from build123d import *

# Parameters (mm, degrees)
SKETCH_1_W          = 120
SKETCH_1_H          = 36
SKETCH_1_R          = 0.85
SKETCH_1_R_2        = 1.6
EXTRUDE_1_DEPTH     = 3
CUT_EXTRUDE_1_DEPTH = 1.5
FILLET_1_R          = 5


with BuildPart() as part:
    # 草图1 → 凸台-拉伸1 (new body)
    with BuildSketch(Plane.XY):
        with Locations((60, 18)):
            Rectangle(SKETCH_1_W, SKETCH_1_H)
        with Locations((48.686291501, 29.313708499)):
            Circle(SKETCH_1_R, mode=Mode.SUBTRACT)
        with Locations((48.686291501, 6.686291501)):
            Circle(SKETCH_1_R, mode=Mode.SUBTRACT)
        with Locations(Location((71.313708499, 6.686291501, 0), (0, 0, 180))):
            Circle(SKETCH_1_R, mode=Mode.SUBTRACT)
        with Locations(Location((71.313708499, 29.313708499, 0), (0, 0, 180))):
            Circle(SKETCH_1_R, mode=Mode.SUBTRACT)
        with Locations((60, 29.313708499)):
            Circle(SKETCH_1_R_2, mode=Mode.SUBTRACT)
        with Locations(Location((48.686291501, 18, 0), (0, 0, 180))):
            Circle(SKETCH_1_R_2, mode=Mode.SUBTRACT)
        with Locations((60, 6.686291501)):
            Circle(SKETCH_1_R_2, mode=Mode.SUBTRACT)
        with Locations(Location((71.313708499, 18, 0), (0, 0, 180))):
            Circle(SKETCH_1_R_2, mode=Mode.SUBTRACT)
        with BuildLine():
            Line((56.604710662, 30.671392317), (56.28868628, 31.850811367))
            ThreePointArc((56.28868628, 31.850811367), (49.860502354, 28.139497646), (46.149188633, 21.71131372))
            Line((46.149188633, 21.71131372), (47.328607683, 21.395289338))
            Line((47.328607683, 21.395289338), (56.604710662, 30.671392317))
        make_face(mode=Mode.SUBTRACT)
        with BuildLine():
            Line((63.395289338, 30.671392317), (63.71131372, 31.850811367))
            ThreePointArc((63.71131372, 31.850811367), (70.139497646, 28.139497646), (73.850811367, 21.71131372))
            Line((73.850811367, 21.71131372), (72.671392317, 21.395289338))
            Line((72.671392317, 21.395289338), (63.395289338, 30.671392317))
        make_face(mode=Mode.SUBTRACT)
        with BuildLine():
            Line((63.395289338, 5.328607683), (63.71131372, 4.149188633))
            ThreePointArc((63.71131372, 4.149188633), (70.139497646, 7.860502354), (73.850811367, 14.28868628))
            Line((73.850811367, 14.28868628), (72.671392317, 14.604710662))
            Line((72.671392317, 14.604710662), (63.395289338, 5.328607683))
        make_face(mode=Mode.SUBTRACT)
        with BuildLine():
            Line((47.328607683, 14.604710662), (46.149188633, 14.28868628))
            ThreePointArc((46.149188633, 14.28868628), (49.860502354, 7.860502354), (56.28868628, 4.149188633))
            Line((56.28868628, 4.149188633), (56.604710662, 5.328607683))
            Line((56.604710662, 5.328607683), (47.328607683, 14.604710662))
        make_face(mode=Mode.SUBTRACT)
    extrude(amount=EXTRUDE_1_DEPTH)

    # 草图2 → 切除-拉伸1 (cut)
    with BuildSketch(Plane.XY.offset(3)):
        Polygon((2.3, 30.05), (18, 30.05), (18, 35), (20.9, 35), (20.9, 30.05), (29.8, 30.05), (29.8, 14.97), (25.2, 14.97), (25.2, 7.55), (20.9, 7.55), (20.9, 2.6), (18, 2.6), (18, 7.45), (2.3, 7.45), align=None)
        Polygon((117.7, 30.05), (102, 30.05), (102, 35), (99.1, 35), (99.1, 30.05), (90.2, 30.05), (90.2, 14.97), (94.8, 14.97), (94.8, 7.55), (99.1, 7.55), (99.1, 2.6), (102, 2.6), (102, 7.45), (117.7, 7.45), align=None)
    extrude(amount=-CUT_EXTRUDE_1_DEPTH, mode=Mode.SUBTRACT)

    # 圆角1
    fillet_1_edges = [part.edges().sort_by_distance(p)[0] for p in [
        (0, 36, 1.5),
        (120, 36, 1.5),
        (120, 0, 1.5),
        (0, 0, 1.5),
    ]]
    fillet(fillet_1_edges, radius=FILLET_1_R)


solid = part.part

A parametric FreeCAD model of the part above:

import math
import FreeCAD as App
import Part
import Sketcher
Q = App.Units.Quantity


def edges_at(feature, points):
    """Names of the edges that pass closest to the given points."""
    edges = feature.Shape.Edges
    near = lambda p: min(range(len(edges)), key=lambda i: edges[i].distToShape(Part.Vertex(*p))[0])
    return sorted({f"Edge{near(p) + 1}" for p in points})

doc = App.newDocument("Part")
body = doc.addObject("PartDesign::Body", "Body")

# Sketch on XY plane
sketch1 = body.newObject("Sketcher::SketchObject", "Sketch")
sketch1.AttachmentSupport = (doc.getObject("XY_Plane"), [""])
sketch1.MapMode = "FlatFace"
sketch1.addGeometry([
    Part.LineSegment(App.Vector(0, 36, 0), App.Vector(0, 0, 0)),  # 0
    Part.LineSegment(App.Vector(0, 0, 0), App.Vector(120, 0, 0)),  # 1
    Part.LineSegment(App.Vector(120, 0, 0), App.Vector(120, 36, 0)),  # 2
    Part.LineSegment(App.Vector(120, 36, 0), App.Vector(0, 36, 0)),  # 3
    Part.Circle(App.Vector(48.686292, 6.686292, 0), App.Vector(0, 0, 1), 0.85),  # 4
    Part.LineSegment(App.Vector(46.149189, 14.288686, 0), App.Vector(47.328608, 14.604711, 0)),  # 5
    Part.LineSegment(App.Vector(47.328608, 14.604711, 0), App.Vector(56.604711, 5.328608, 0)),  # 6
    Part.LineSegment(App.Vector(56.604711, 5.328608, 0), App.Vector(56.288686, 4.149189, 0)),  # 7
    Part.ArcOfCircle(Part.Circle(App.Vector(60, 18, 0), App.Vector(0, 0, 1), 14.339415), math.radians(-165), math.radians(-105)),  # 8
    Part.Circle(App.Vector(60, 6.686292, 0), App.Vector(0, 0, 1), 1.6),  # 9
    Part.Circle(App.Vector(71.313708, 6.686292, 0), App.Vector(0, 0, 1), 0.85),  # 10
    Part.LineSegment(App.Vector(63.711314, 4.149189, 0), App.Vector(63.395289, 5.328608, 0)),  # 11
    Part.LineSegment(App.Vector(63.395289, 5.328608, 0), App.Vector(72.671392, 14.604711, 0)),  # 12
    Part.LineSegment(App.Vector(72.671392, 14.604711, 0), App.Vector(73.850811, 14.288686, 0)),  # 13
    Part.ArcOfCircle(Part.Circle(App.Vector(60, 18, 0), App.Vector(0, 0, 1), 14.339415), math.radians(-75), math.radians(-15)),  # 14
    Part.Circle(App.Vector(48.686292, 18, 0), App.Vector(0, 0, 1), 1.6),  # 15
    Part.LineSegment(App.Vector(56.288686, 31.850811, 0), App.Vector(56.604711, 30.671392, 0)),  # 16
    Part.LineSegment(App.Vector(56.604711, 30.671392, 0), App.Vector(47.328608, 21.395289, 0)),  # 17
    Part.LineSegment(App.Vector(47.328608, 21.395289, 0), App.Vector(46.149189, 21.711314, 0)),  # 18
    Part.ArcOfCircle(Part.Circle(App.Vector(60, 18, 0), App.Vector(0, 0, 1), 14.339415), math.radians(105), math.radians(165)),  # 19
    Part.Circle(App.Vector(48.686292, 29.313708, 0), App.Vector(0, 0, 1), 0.85),  # 20
    Part.Circle(App.Vector(60, 29.313708, 0), App.Vector(0, 0, 1), 1.6),  # 21
    Part.Circle(App.Vector(71.313708, 18, 0), App.Vector(0, 0, 1), 1.6),  # 22
    Part.LineSegment(App.Vector(72.671392, 21.395289, 0), App.Vector(63.395289, 30.671392, 0)),  # 23
    Part.LineSegment(App.Vector(63.395289, 30.671392, 0), App.Vector(63.711314, 31.850811, 0)),  # 24
    Part.ArcOfCircle(Part.Circle(App.Vector(60, 18, 0), App.Vector(0, 0, 1), 14.339415), math.radians(15), math.radians(75)),  # 25
    Part.LineSegment(App.Vector(73.850811, 21.711314, 0), App.Vector(72.671392, 21.395289, 0)),  # 26
    Part.Circle(App.Vector(71.313708, 29.313708, 0), App.Vector(0, 0, 1), 0.85),  # 27
], False)
sketch1.addConstraint([
    Sketcher.Constraint("Coincident", 0, 2, 1, 1),
    Sketcher.Constraint("Coincident", 1, 2, 2, 1),
    Sketcher.Constraint("Coincident", 2, 2, 3, 1),
    Sketcher.Constraint("Coincident", 3, 2, 0, 1),
    Sketcher.Constraint("Coincident", 5, 2, 6, 1),
    Sketcher.Constraint("Coincident", 6, 2, 7, 1),
    Sketcher.Constraint("Coincident", 7, 2, 8, 2),
    Sketcher.Constraint("Coincident", 8, 1, 5, 1),
    Sketcher.Constraint("Coincident", 11, 2, 12, 1),
    Sketcher.Constraint("Coincident", 12, 2, 13, 1),
    Sketcher.Constraint("Coincident", 13, 2, 14, 2),
    Sketcher.Constraint("Coincident", 14, 1, 11, 1),
    Sketcher.Constraint("Coincident", 16, 2, 17, 1),
    Sketcher.Constraint("Coincident", 17, 2, 18, 1),
    Sketcher.Constraint("Coincident", 18, 2, 19, 2),
    Sketcher.Constraint("Coincident", 19, 1, 16, 1),
    Sketcher.Constraint("Coincident", 23, 2, 24, 1),
    Sketcher.Constraint("Coincident", 24, 2, 25, 2),
    Sketcher.Constraint("Coincident", 25, 1, 26, 1),
    Sketcher.Constraint("Coincident", 26, 2, 23, 1),
    Sketcher.Constraint("Vertical", 0),
    Sketcher.Constraint("Horizontal", 1),
    Sketcher.Constraint("Vertical", 2),
    Sketcher.Constraint("Horizontal", 3),
    Sketcher.Constraint("Coincident", 0, 2, -1, 1),
    Sketcher.Constraint("Coincident", 14, 3, 8, 3),
    Sketcher.Constraint("Coincident", 19, 3, 8, 3),
    Sketcher.Constraint("Coincident", 25, 3, 8, 3),
    Sketcher.Constraint("Equal", 4, 10),
    Sketcher.Constraint("Equal", 8, 14),
    Sketcher.Constraint("Equal", 9, 15),
    Sketcher.Constraint("Equal", 14, 19),
    Sketcher.Constraint("Equal", 10, 20),
    Sketcher.Constraint("Equal", 15, 21),
    Sketcher.Constraint("Equal", 21, 22),
    Sketcher.Constraint("Equal", 19, 25),
    Sketcher.Constraint("Equal", 20, 27),
    Sketcher.Constraint("Perpendicular", 5, 11),
    Sketcher.Constraint("Perpendicular", 6, 12),
    Sketcher.Constraint("Perpendicular", 7, 13),
    Sketcher.Constraint("Parallel", 11, 16),
    Sketcher.Constraint("Parallel", 12, 17),
    Sketcher.Constraint("Parallel", 13, 18),
    Sketcher.Constraint("Perpendicular", 17, 23),
    Sketcher.Constraint("Perpendicular", 18, 24),
    Sketcher.Constraint("Perpendicular", 16, 26),
    Sketcher.Constraint("Horizontal", 4, 3, 9, 3),
    Sketcher.Constraint("Horizontal", 9, 3, 10, 3),
    Sketcher.Constraint("Horizontal", 14, 3, 15, 3),
    Sketcher.Constraint("Horizontal", 20, 3, 21, 3),
    Sketcher.Constraint("Horizontal", 19, 3, 22, 3),
    Sketcher.Constraint("Horizontal", 21, 3, 27, 3),
    Sketcher.Constraint("Horizontal", 6, 2, 11, 2),
    Sketcher.Constraint("Horizontal", 5, 2, 12, 2),
    Sketcher.Constraint("Horizontal", 8, 1, 13, 2),
    Sketcher.Constraint("Horizontal", 7, 2, 14, 1),
    Sketcher.Constraint("Horizontal", 16, 2, 23, 2),
    Sketcher.Constraint("Horizontal", 19, 1, 24, 2),
    Sketcher.Constraint("Horizontal", 18, 2, 25, 1),
    Sketcher.Constraint("Vertical", 8, 3, 9, 3),
    Sketcher.Constraint("Vertical", 4, 3, 15, 3),
    Sketcher.Constraint("Vertical", 15, 3, 20, 3),
    Sketcher.Constraint("Vertical", 19, 3, 21, 3),
    Sketcher.Constraint("Vertical", 10, 3, 22, 3),
    Sketcher.Constraint("Vertical", 22, 3, 27, 3),
    Sketcher.Constraint("Vertical", 6, 2, 16, 2),
    Sketcher.Constraint("Vertical", 5, 2, 17, 2),
    Sketcher.Constraint("Vertical", 8, 1, 18, 2),
    Sketcher.Constraint("Vertical", 11, 2, 23, 2),
    Sketcher.Constraint("Equal", 5, 7),
    Sketcher.Constraint("Diameter", 4, Q("1.7 mm")),
    Sketcher.Constraint("Diameter", 9, Q("3.2 mm")),
    Sketcher.Constraint("DistanceX", 1, 1, 1, 2, Q("120 mm")),
    Sketcher.Constraint("DistanceY", 0, 2, 0, 1, Q("36 mm")),
    Sketcher.Constraint("Angle", 5, Q("15 deg")),
    Sketcher.Constraint("DistanceX", -1, 1, 8, 3, Q("60 mm")),
    Sketcher.Constraint("DistanceY", -1, 1, 8, 3, Q("18 mm")),
    Sketcher.Constraint("Radius", 8, Q("14.339415 mm")),
    Sketcher.Constraint("Distance", 6, Q("13.118391 mm")),
    Sketcher.Constraint("DistanceX", -1, 1, 4, 3, Q("48.686292 mm")),
    Sketcher.Constraint("DistanceY", -1, 1, 4, 3, Q("6.686292 mm")),
    Sketcher.Constraint("DistanceX", -1, 1, 10, 3, Q("71.313708 mm")),
    Sketcher.Constraint("DistanceY", -1, 1, 20, 3, Q("29.313708 mm")),
    Sketcher.Constraint("DistanceY", -1, 1, 5, 2, Q("14.604711 mm")),
])
pad1 = body.newObject("PartDesign::Pad", "Pad")
pad1.Profile = sketch1
pad1.Length = 3

# Sketch on XY plane
sketch2 = body.newObject("Sketcher::SketchObject", "Sketch001")
sketch2.AttachmentSupport = (doc.getObject("XY_Plane"), [""])
sketch2.MapMode = "FlatFace"
sketch2.AttachmentOffset = App.Placement(App.Vector(0, 0, 3), App.Rotation())
sketch2.addGeometry([
    Part.LineSegment(App.Vector(18, 30.05, 0), App.Vector(2.3, 30.05, 0)),  # 0
    Part.LineSegment(App.Vector(2.3, 30.05, 0), App.Vector(2.3, 7.45, 0)),  # 1
    Part.LineSegment(App.Vector(2.3, 7.45, 0), App.Vector(18, 7.45, 0)),  # 2
    Part.LineSegment(App.Vector(18, 7.45, 0), App.Vector(18, 2.6, 0)),  # 3
    Part.LineSegment(App.Vector(18, 2.6, 0), App.Vector(20.9, 2.6, 0)),  # 4
    Part.LineSegment(App.Vector(20.9, 2.6, 0), App.Vector(20.9, 7.55, 0)),  # 5
    Part.LineSegment(App.Vector(20.9, 7.55, 0), App.Vector(25.2, 7.55, 0)),  # 6
    Part.LineSegment(App.Vector(25.2, 7.55, 0), App.Vector(25.2, 14.97, 0)),  # 7
    Part.LineSegment(App.Vector(25.2, 14.97, 0), App.Vector(29.8, 14.97, 0)),  # 8
    Part.LineSegment(App.Vector(29.8, 14.97, 0), App.Vector(29.8, 30.05, 0)),  # 9
    Part.LineSegment(App.Vector(29.8, 30.05, 0), App.Vector(20.9, 30.05, 0)),  # 10
    Part.LineSegment(App.Vector(20.9, 30.05, 0), App.Vector(20.9, 35, 0)),  # 11
    Part.LineSegment(App.Vector(20.9, 35, 0), App.Vector(18, 35, 0)),  # 12
    Part.LineSegment(App.Vector(18, 35, 0), App.Vector(18, 30.05, 0)),  # 13
    Part.LineSegment(App.Vector(117.7, 30.05, 0), App.Vector(102, 30.05, 0)),  # 14
    Part.LineSegment(App.Vector(102, 30.05, 0), App.Vector(102, 35, 0)),  # 15
    Part.LineSegment(App.Vector(102, 35, 0), App.Vector(99.1, 35, 0)),  # 16
    Part.LineSegment(App.Vector(99.1, 35, 0), App.Vector(99.1, 30.05, 0)),  # 17
    Part.LineSegment(App.Vector(99.1, 30.05, 0), App.Vector(90.2, 30.05, 0)),  # 18
    Part.LineSegment(App.Vector(90.2, 30.05, 0), App.Vector(90.2, 14.97, 0)),  # 19
    Part.LineSegment(App.Vector(90.2, 14.97, 0), App.Vector(94.8, 14.97, 0)),  # 20
    Part.LineSegment(App.Vector(94.8, 14.97, 0), App.Vector(94.8, 7.55, 0)),  # 21
    Part.LineSegment(App.Vector(94.8, 7.55, 0), App.Vector(99.1, 7.55, 0)),  # 22
    Part.LineSegment(App.Vector(99.1, 7.55, 0), App.Vector(99.1, 2.6, 0)),  # 23
    Part.LineSegment(App.Vector(99.1, 2.6, 0), App.Vector(102, 2.6, 0)),  # 24
    Part.LineSegment(App.Vector(102, 2.6, 0), App.Vector(102, 7.45, 0)),  # 25
    Part.LineSegment(App.Vector(102, 7.45, 0), App.Vector(117.7, 7.45, 0)),  # 26
    Part.LineSegment(App.Vector(117.7, 7.45, 0), App.Vector(117.7, 30.05, 0)),  # 27
], False)
sketch2.addConstraint([
    Sketcher.Constraint("Coincident", 0, 2, 1, 1),
    Sketcher.Constraint("Coincident", 1, 2, 2, 1),
    Sketcher.Constraint("Coincident", 2, 2, 3, 1),
    Sketcher.Constraint("Coincident", 3, 2, 4, 1),
    Sketcher.Constraint("Coincident", 4, 2, 5, 1),
    Sketcher.Constraint("Coincident", 5, 2, 6, 1),
    Sketcher.Constraint("Coincident", 6, 2, 7, 1),
    Sketcher.Constraint("Coincident", 7, 2, 8, 1),
    Sketcher.Constraint("Coincident", 8, 2, 9, 1),
    Sketcher.Constraint("Coincident", 9, 2, 10, 1),
    Sketcher.Constraint("Coincident", 10, 2, 11, 1),
    Sketcher.Constraint("Coincident", 11, 2, 12, 1),
    Sketcher.Constraint("Coincident", 12, 2, 13, 1),
    Sketcher.Constraint("Coincident", 13, 2, 0, 1),
    Sketcher.Constraint("Coincident", 14, 2, 15, 1),
    Sketcher.Constraint("Coincident", 15, 2, 16, 1),
    Sketcher.Constraint("Coincident", 16, 2, 17, 1),
    Sketcher.Constraint("Coincident", 17, 2, 18, 1),
    Sketcher.Constraint("Coincident", 18, 2, 19, 1),
    Sketcher.Constraint("Coincident", 19, 2, 20, 1),
    Sketcher.Constraint("Coincident", 20, 2, 21, 1),
    Sketcher.Constraint("Coincident", 21, 2, 22, 1),
    Sketcher.Constraint("Coincident", 22, 2, 23, 1),
    Sketcher.Constraint("Coincident", 23, 2, 24, 1),
    Sketcher.Constraint("Coincident", 24, 2, 25, 1),
    Sketcher.Constraint("Coincident", 25, 2, 26, 1),
    Sketcher.Constraint("Coincident", 26, 2, 27, 1),
    Sketcher.Constraint("Coincident", 27, 2, 14, 1),
    Sketcher.Constraint("Horizontal", 0),
    Sketcher.Constraint("Vertical", 1),
    Sketcher.Constraint("Horizontal", 2),
    Sketcher.Constraint("Vertical", 3),
    Sketcher.Constraint("Horizontal", 4),
    Sketcher.Constraint("Vertical", 5),
    Sketcher.Constraint("Horizontal", 6),
    Sketcher.Constraint("Vertical", 7),
    Sketcher.Constraint("Horizontal", 8),
    Sketcher.Constraint("Vertical", 9),
    Sketcher.Constraint("Horizontal", 10),
    Sketcher.Constraint("Vertical", 11),
    Sketcher.Constraint("Horizontal", 12),
    Sketcher.Constraint("Vertical", 13),
    Sketcher.Constraint("Horizontal", 14),
    Sketcher.Constraint("Vertical", 15),
    Sketcher.Constraint("Horizontal", 16),
    Sketcher.Constraint("Vertical", 17),
    Sketcher.Constraint("Horizontal", 18),
    Sketcher.Constraint("Vertical", 19),
    Sketcher.Constraint("Horizontal", 20),
    Sketcher.Constraint("Vertical", 21),
    Sketcher.Constraint("Horizontal", 22),
    Sketcher.Constraint("Vertical", 23),
    Sketcher.Constraint("Horizontal", 24),
    Sketcher.Constraint("Vertical", 25),
    Sketcher.Constraint("Horizontal", 26),
    Sketcher.Constraint("Vertical", 27),
    Sketcher.Constraint("Horizontal", 0, 2, 9, 2),
    Sketcher.Constraint("Horizontal", 13, 2, 14, 2),
    Sketcher.Constraint("Horizontal", 12, 2, 15, 2),
    Sketcher.Constraint("Horizontal", 14, 2, 17, 2),
    Sketcher.Constraint("Horizontal", 8, 2, 19, 2),
    Sketcher.Constraint("Horizontal", 6, 2, 21, 2),
    Sketcher.Constraint("Horizontal", 4, 2, 23, 2),
    Sketcher.Constraint("Horizontal", 2, 2, 25, 2),
    Sketcher.Constraint("Vertical", 5, 2, 10, 2),
    Sketcher.Constraint("Vertical", 3, 2, 12, 2),
    Sketcher.Constraint("Vertical", 17, 2, 22, 2),
    Sketcher.Constraint("Vertical", 15, 2, 24, 2),
    Sketcher.Constraint("Equal", 2, 14),
    Sketcher.Constraint("Equal", 12, 16),
    Sketcher.Constraint("Equal", 10, 18),
    Sketcher.Constraint("Equal", 8, 20),
    Sketcher.Constraint("Equal", 5, 11),
    Sketcher.Constraint("DistanceX", 0, 2, 0, 1, Q("15.7 mm")),
    Sketcher.Constraint("DistanceX", 4, 1, 4, 2, Q("2.9 mm")),
    Sketcher.Constraint("DistanceX", 6, 1, 6, 2, Q("4.3 mm")),
    Sketcher.Constraint("DistanceX", 8, 1, 8, 2, Q("4.6 mm")),
    Sketcher.Constraint("DistanceY", 1, 2, 1, 1, Q("22.6 mm")),
    Sketcher.Constraint("DistanceX", -1, 1, 2, 2, Q("18 mm")),
    Sketcher.Constraint("DistanceY", -1, 1, 11, 2, Q("35 mm")),
    Sketcher.Constraint("DistanceX", -1, 1, 14, 2, Q("102 mm")),
    Sketcher.Constraint("DistanceY", 3, 2, 3, 1, Q("4.85 mm")),
    Sketcher.Constraint("DistanceY", 5, 1, 5, 2, Q("4.95 mm")),
    Sketcher.Constraint("DistanceY", 7, 1, 7, 2, Q("7.42 mm")),
])
pocket1 = body.newObject("PartDesign::Pocket", "Pocket")
pocket1.Profile = sketch2
pocket1.Length = 1.5
doc.recompute()

fillet = body.newObject("PartDesign::Fillet", "Fillet")
fillet.Base = (pocket1, edges_at(pocket1, [
    (0, 36, 1.5),
    (120, 36, 1.5),
    (120, 0, 1.5),
    (0, 0, 1.5),
]))
fillet.Radius = 5

doc.recompute()
